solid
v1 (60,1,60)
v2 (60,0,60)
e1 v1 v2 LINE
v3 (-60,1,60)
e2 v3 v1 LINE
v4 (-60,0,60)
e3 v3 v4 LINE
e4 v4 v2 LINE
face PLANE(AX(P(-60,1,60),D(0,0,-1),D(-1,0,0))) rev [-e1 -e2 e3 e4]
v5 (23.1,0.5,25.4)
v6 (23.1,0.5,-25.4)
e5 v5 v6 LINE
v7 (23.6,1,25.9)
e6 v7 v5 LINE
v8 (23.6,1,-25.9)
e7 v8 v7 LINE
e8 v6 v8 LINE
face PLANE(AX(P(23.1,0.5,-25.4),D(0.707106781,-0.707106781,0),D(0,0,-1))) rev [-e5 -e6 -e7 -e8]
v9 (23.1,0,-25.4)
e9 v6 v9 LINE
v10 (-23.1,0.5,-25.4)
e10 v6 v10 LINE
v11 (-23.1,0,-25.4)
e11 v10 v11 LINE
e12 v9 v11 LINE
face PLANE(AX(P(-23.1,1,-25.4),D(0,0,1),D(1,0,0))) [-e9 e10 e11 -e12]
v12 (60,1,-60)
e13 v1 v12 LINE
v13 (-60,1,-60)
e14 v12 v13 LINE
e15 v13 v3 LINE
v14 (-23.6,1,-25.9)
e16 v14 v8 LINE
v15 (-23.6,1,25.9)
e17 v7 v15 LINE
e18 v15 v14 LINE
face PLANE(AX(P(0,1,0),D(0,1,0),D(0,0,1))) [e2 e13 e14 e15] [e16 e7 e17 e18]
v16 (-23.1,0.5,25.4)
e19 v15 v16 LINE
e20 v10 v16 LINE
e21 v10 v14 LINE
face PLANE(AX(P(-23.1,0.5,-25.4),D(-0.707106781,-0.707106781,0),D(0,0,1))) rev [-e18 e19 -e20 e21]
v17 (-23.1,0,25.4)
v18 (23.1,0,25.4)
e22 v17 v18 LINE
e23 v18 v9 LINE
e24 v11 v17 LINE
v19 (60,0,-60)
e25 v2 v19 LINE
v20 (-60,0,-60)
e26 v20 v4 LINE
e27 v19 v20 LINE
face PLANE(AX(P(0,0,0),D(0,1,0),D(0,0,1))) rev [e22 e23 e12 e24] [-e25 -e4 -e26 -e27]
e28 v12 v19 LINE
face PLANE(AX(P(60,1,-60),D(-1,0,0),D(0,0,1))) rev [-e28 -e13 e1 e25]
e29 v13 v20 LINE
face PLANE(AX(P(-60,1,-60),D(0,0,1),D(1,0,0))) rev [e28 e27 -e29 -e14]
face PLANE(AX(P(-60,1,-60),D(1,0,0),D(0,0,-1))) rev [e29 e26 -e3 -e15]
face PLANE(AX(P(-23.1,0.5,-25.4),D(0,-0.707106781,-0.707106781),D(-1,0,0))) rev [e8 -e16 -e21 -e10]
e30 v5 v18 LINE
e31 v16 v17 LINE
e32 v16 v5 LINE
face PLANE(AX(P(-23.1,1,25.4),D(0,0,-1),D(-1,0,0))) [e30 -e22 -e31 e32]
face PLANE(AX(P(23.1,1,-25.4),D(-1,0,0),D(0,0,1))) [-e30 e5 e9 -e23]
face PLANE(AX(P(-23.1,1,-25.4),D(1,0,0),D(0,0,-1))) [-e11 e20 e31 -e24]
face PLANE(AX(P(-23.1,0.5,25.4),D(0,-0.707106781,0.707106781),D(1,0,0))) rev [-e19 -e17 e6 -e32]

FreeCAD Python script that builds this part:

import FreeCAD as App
import Part
import Sketcher
Q = App.Units.Quantity


def edges_at(feature, points):
    """Names of the edges that pass closest to the given points."""
    edges = feature.Shape.Edges
    near = lambda p: min(range(len(edges)), key=lambda i: edges[i].distToShape(Part.Vertex(*p))[0])
    return sorted({f"Edge{near(p) + 1}" for p in points})

doc = App.newDocument("Part")
params = doc.addObject("Spreadsheet::Sheet", "Params")
for row, (alias, value) in enumerate([
    ("sketch1_width", "120 mm"),
    ("sketch1_width2", "46.2 mm"),
    ("sketch1_height", "50.8 mm"),
    ("pad1_length", "1 mm"),
    ("chamfer_size", "0.5 mm"),
], start=1):
    params.set(f"A{row}", alias)
    params.set(f"B{row}", "=" + value)
    params.setAlias(f"B{row}", alias)

body = doc.addObject("PartDesign::Body", "Body")

sketch1 = body.newObject("Sketcher::SketchObject", "Sketch")
sketch1.AttachmentSupport = (doc.getObject("XZ_Plane"), [""])
sketch1.MapMode = "FlatFace"
sketch1.addGeometry(Part.LineSegment(App.Vector(-60, -60, 0), App.Vector(-60, 60, 0)), False)
sketch1.addGeometry(Part.LineSegment(App.Vector(-60, 60, 0), App.Vector(60, 60, 0)), False)
sketch1.addGeometry(Part.LineSegment(App.Vector(60, 60, 0), App.Vector(60, -60, 0)), False)
sketch1.addGeometry(Part.LineSegment(App.Vector(60, -60, 0), App.Vector(-60, -60, 0)), False)
sketch1.addGeometry(Part.LineSegment(App.Vector(23.1, 25.4, 0), App.Vector(-23.1, 25.4, 0)), False)
sketch1.addGeometry(Part.LineSegment(App.Vector(-23.1, 25.4, 0), App.Vector(-23.1, -25.4, 0)), False)
sketch1.addGeometry(Part.LineSegment(App.Vector(-23.1, -25.4, 0), App.Vector(23.1, -25.4, 0)), False)
sketch1.addGeometry(Part.LineSegment(App.Vector(23.1, -25.4, 0), App.Vector(23.1, 25.4, 0)), False)
sketch1.addConstraint(Sketcher.Constraint("Coincident", 0, 2, 1, 1))
sketch1.addConstraint(Sketcher.Constraint("Coincident", 1, 2, 2, 1))
sketch1.addConstraint(Sketcher.Constraint("Coincident", 2, 2, 3, 1))
sketch1.addConstraint(Sketcher.Constraint("Coincident", 3, 2, 0, 1))
sketch1.addConstraint(Sketcher.Constraint("Coincident", 4, 2, 5, 1))
sketch1.addConstraint(Sketcher.Constraint("Coincident", 5, 2, 6, 1))
sketch1.addConstraint(Sketcher.Constraint("Coincident", 6, 2, 7, 1))
sketch1.addConstraint(Sketcher.Constraint("Coincident", 7, 2, 4, 1))
sketch1.addConstraint(Sketcher.Constraint("Vertical", 0))
sketch1.addConstraint(Sketcher.Constraint("Horizontal", 1))
sketch1.addConstraint(Sketcher.Constraint("Vertical", 2))
sketch1.addConstraint(Sketcher.Constraint("Horizontal", 3))
sketch1.addConstraint(Sketcher.Constraint("Horizontal", 4))
sketch1.addConstraint(Sketcher.Constraint("Vertical", 5))
sketch1.addConstraint(Sketcher.Constraint("Horizontal", 6))
sketch1.addConstraint(Sketcher.Constraint("Vertical", 7))
sketch1.addConstraint(Sketcher.Constraint("Symmetric", 0, 2, 2, 2, -1, 1))
sketch1.addConstraint(Sketcher.Constraint("Symmetric", 4, 2, 6, 2, -1, 1))
sketch1.addConstraint(Sketcher.Constraint("Equal", 3, 0))
sketch1.addConstraint(Sketcher.Constraint("DistanceX", 1, 1, 1, 2, Q("120 mm")))
sketch1.addConstraint(Sketcher.Constraint("DistanceX", 4, 2, 4, 1, Q("46.2 mm")))
sketch1.addConstraint(Sketcher.Constraint("DistanceY", 5, 2, 5, 1, Q("50.8 mm")))
sketch1.setExpression("Constraints[19]", "Params.sketch1_width")
sketch1.setExpression("Constraints[20]", "Params.sketch1_width2")
sketch1.setExpression("Constraints[21]", "Params.sketch1_height")
pad1 = body.newObject("PartDesign::Pad", "Pad")
pad1.Profile = sketch1
pad1.setExpression("Length", "Params.pad1_length")
pad1.Reversed = True
doc.recompute()

chamfer = body.newObject("PartDesign::Chamfer", "Chamfer")
chamfer.Base = (pad1, edges_at(pad1, [
    (23.1, 1, 0),
    (0, 1, -25.4),
    (-23.1, 1, 0),
    (0, 1, 25.4),
]))
chamfer.setExpression("Size", "Params.chamfer_size")

doc.recompute()
